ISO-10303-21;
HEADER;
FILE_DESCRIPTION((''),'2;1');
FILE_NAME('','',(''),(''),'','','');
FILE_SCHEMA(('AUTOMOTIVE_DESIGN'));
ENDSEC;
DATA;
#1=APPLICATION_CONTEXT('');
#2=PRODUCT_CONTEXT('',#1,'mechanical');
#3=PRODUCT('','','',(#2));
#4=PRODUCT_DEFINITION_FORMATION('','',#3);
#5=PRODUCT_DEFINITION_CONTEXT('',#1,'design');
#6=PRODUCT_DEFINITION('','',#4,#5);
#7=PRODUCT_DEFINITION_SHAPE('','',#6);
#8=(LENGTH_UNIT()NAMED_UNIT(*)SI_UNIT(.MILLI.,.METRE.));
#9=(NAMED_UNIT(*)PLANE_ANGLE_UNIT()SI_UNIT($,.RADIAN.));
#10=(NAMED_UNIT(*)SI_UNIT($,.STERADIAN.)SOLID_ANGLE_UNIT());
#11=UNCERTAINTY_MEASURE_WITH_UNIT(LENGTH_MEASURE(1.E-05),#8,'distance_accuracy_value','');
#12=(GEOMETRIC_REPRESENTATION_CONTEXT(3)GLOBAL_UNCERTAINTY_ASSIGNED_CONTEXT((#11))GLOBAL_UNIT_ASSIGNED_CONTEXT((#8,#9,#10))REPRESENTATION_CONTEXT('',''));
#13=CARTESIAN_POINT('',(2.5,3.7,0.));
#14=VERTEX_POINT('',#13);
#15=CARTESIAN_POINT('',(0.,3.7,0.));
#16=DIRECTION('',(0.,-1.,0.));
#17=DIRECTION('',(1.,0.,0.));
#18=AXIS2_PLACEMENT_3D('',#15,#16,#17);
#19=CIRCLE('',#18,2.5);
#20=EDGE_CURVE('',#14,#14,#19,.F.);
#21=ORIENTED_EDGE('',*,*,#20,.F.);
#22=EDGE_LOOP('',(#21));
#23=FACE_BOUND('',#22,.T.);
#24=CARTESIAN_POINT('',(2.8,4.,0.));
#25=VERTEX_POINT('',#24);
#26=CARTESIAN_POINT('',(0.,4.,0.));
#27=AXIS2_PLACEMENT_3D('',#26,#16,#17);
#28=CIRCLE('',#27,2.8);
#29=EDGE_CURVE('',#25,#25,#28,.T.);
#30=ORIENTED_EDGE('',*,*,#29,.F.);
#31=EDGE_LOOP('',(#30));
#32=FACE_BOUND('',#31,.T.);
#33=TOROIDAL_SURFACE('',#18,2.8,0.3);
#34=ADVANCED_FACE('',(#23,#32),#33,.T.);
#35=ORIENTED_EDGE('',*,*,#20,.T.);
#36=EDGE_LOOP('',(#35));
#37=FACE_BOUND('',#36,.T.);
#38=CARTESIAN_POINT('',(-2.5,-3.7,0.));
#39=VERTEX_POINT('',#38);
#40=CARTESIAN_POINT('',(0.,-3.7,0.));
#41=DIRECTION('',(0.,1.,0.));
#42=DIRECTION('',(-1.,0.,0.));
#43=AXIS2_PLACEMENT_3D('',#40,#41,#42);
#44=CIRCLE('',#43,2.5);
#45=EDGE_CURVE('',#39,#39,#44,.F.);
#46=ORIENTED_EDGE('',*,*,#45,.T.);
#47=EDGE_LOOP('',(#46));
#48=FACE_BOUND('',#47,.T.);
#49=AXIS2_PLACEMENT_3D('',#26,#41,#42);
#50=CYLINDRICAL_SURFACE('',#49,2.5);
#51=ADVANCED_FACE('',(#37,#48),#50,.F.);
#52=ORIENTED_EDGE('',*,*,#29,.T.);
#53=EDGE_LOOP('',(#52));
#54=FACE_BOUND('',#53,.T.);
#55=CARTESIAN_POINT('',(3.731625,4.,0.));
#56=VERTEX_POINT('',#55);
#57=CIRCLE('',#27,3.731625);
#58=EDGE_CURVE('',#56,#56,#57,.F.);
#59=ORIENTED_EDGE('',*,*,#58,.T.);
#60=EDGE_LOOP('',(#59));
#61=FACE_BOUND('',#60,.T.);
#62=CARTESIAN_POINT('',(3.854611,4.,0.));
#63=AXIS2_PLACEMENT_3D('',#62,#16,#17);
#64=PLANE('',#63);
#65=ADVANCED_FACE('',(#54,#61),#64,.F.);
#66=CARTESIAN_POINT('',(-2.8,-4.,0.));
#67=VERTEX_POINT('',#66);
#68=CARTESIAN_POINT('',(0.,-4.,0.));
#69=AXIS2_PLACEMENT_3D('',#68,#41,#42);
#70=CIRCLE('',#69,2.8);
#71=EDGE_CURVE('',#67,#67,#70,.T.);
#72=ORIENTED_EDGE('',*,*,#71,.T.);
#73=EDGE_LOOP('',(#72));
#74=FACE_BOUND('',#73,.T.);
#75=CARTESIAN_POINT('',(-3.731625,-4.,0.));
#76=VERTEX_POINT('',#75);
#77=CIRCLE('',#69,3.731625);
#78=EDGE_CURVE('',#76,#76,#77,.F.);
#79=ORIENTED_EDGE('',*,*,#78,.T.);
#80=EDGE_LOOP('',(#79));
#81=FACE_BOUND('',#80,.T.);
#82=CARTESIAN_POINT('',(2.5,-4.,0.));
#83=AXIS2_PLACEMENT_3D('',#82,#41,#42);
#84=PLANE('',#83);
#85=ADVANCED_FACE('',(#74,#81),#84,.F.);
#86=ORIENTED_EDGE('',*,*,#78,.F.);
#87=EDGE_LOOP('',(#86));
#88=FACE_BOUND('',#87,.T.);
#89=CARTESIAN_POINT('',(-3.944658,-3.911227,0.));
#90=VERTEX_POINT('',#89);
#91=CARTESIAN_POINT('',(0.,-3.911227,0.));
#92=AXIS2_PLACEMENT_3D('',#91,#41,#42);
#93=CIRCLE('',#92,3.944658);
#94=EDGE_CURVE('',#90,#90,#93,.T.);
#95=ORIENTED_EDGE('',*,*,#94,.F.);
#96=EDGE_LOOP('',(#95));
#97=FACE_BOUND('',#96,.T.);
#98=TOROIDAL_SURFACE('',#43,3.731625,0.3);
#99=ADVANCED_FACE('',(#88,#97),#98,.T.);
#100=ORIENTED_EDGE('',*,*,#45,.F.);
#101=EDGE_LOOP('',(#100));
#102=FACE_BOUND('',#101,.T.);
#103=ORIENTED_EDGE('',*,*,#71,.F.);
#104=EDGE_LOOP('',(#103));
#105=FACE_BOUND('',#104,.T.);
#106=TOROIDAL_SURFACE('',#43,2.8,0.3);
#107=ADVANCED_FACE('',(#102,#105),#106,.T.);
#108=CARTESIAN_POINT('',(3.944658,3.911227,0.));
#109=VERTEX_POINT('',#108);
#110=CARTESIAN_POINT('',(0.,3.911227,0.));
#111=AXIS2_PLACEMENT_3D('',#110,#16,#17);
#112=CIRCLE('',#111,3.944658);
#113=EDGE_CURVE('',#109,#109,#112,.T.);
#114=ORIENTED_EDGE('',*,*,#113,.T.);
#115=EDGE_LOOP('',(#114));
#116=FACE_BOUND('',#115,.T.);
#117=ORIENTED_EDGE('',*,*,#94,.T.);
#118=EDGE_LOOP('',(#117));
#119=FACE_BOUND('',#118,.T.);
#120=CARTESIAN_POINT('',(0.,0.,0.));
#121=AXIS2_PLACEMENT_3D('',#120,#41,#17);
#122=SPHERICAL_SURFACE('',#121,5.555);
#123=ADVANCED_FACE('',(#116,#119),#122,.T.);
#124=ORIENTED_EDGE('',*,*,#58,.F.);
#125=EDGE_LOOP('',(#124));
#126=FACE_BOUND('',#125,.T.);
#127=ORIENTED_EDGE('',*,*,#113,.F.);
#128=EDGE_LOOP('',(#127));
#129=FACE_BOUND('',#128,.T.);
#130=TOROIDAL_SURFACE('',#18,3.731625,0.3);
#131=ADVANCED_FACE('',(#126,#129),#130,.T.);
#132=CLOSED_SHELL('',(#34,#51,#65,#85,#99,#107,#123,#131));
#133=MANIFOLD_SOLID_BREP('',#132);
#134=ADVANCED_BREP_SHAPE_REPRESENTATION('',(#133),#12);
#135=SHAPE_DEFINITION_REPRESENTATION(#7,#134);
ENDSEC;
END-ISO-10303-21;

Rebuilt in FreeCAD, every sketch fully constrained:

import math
import FreeCAD as App
import Part
import Sketcher

V = App.Vector
Q = App.Units.Quantity


def edges_at(feature, points):
    """Names of the edges that pass closest to the given points."""
    edges = feature.Shape.Edges
    near = lambda p: min(range(len(edges)), key=lambda i: edges[i].distToShape(Part.Vertex(*p))[0])
    return sorted({f"Edge{near(p) + 1}" for p in points})

doc = App.newDocument("Part")
params = doc.addObject("Spreadsheet::Sheet", "Params")
for row, (alias, value) in enumerate([
    ("sketch1_height", "8 mm"),
    ("revolution_angle", "360 deg"),
    ("fillet_radius", "0.3 mm"),
], start=1):
    params.set(f"A{row}", alias)
    params.set(f"B{row}", "=" + value)
    params.setAlias(f"B{row}", alias)

body = doc.addObject("PartDesign::Body", "Body")

sketch1 = body.newObject("Sketcher::SketchObject", "Sketch")
sketch1.AttachmentSupport = (doc.getObject("XY_Plane"), [""])
sketch1.MapMode = "FlatFace"
sketch1.addGeometry([
    Part.LineSegment(V(3.854611, 4, 0), V(2.5, 4, 0)),
    Part.LineSegment(V(2.5, 4, 0), V(2.5, -4, 0)),
    Part.LineSegment(V(2.5, -4, 0), V(3.854611, -4, 0)),
    Part.ArcOfCircle(Part.Circle(V(0, 0, 0), V(0, 0, 1), 5.555), math.radians(-46.060426), math.radians(46.060426)),
], False)
sketch1.addConstraint([
    Sketcher.Constraint("Coincident", 0, 2, 1, 1),
    Sketcher.Constraint("Coincident", 1, 2, 2, 1),
    Sketcher.Constraint("Coincident", 2, 2, 3, 1),
    Sketcher.Constraint("Coincident", 3, 2, 0, 1),
    Sketcher.Constraint("Horizontal", 0),
    Sketcher.Constraint("Vertical", 1),
    Sketcher.Constraint("Horizontal", 2),
    Sketcher.Constraint("Coincident", 3, 3, -1, 1),
    Sketcher.Constraint("Vertical", 2, 2, 3, 2),
    Sketcher.Constraint("DistanceY", 1, 2, 1, 1, Q("8 mm")),
    Sketcher.Constraint("Radius", 3, Q("5.555 mm")),
    Sketcher.Constraint("DistanceX", -1, 1, 0, 2, Q("2.5 mm")),
])
sketch1.setExpression("Constraints[9]", "Params.sketch1_height")
revolution = body.newObject("PartDesign::Revolution", "Revolution")
revolution.Profile = sketch1
revolution.ReferenceAxis = (sketch1, ["V_Axis"])
revolution.setExpression("Angle", "Params.revolution_angle")
doc.recompute()

fillet = body.newObject("PartDesign::Fillet", "Fillet")
fillet.Base = (revolution, edges_at(revolution, [
    (-3.855, -4, 0),
    (-2.5, -4, 0),
    (-2.5, 4, 0),
    (-3.855, 4, 0),
]))
fillet.setExpression("Radius", "Params.fillet_radius")

doc.recompute()
